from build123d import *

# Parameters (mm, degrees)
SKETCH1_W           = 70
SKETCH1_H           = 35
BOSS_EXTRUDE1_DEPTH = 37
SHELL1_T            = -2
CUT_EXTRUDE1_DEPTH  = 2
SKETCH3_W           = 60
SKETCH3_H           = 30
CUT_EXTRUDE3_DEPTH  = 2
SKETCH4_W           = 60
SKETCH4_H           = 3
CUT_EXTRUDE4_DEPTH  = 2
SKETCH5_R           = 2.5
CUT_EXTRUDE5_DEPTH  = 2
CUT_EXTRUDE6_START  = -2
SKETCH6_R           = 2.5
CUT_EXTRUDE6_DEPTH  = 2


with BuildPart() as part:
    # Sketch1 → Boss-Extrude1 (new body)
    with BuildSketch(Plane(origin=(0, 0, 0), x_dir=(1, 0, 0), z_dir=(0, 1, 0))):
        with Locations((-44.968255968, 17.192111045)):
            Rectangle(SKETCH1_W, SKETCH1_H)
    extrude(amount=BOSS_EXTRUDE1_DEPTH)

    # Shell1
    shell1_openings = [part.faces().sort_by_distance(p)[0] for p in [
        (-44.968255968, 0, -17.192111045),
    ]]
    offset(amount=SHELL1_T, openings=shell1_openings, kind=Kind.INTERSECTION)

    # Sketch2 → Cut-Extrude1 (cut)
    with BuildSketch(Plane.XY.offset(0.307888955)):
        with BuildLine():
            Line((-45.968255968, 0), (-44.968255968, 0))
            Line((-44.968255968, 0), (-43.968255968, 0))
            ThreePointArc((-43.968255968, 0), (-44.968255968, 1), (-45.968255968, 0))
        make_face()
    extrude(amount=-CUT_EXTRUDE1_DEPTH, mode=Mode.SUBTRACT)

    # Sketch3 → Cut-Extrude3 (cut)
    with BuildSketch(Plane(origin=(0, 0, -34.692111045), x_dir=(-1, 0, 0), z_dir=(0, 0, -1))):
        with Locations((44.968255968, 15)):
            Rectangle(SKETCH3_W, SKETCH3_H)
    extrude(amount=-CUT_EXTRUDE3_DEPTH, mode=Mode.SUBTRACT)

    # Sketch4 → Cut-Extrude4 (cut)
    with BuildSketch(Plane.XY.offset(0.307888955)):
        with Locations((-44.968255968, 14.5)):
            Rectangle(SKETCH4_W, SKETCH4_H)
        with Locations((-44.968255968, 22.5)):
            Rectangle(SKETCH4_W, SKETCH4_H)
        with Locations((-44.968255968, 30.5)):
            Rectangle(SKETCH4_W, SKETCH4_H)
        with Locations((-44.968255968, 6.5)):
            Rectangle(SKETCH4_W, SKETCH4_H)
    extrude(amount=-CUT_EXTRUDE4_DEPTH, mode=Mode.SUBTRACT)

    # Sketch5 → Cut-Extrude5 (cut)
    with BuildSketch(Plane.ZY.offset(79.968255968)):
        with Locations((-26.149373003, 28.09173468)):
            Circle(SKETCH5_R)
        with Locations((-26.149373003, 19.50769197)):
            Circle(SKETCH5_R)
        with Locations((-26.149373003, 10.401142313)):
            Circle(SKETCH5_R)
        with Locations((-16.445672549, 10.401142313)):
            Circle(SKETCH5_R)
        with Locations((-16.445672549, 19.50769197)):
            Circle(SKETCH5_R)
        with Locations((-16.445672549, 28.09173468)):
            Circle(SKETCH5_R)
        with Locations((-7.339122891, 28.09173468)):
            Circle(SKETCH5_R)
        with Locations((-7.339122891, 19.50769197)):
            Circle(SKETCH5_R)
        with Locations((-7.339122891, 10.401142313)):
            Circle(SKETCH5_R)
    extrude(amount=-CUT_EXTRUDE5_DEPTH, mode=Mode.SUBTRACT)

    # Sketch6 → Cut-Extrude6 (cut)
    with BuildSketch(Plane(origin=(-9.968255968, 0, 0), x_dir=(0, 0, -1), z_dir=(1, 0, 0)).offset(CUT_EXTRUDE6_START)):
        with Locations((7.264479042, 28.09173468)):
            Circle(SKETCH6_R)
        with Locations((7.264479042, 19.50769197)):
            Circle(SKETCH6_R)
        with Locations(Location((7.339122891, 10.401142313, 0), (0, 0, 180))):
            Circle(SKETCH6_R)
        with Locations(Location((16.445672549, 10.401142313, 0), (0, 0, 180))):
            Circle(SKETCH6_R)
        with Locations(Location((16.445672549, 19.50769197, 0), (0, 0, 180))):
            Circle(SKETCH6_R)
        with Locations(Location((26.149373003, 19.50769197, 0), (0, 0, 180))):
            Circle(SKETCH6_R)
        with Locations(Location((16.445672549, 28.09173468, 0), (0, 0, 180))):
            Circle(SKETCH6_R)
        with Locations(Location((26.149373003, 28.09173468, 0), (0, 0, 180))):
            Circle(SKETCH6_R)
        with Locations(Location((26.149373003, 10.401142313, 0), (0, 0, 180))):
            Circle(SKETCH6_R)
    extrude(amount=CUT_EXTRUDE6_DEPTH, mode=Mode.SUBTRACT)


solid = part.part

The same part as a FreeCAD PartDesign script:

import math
import FreeCAD as App
import Part
import Sketcher
from FreeCAD import Vector
Q = App.Units.Quantity


def faces_at(feature, points):
    """Names of the faces that lie closest to the given points."""
    faces = feature.Shape.Faces
    near = lambda p: min(range(len(faces)), key=lambda i: faces[i].distToShape(Part.Vertex(*p))[0])
    return sorted({f"Face{near(p) + 1}" for p in points})

doc = App.newDocument("Part")
body = doc.addObject("PartDesign::Body", "Body")

# Sketch on XZ plane
sketch1 = body.newObject("Sketcher::SketchObject", "Sketch")
sketch1.AttachmentSupport = (doc.getObject("XZ_Plane"), [""])
sketch1.MapMode = "FlatFace"
sketch1.addGeometry(Part.LineSegment(Vector(-80, -35, 0), Vector(-80, 0, 0)), False)
sketch1.addGeometry(Part.LineSegment(Vector(-80, 0, 0), Vector(-10, 0, 0)), False)
sketch1.addGeometry(Part.LineSegment(Vector(-10, 0, 0), Vector(-10, -35, 0)), False)
sketch1.addGeometry(Part.LineSegment(Vector(-10, -35, 0), Vector(-80, -35, 0)), False)
sketch1.addConstraint(Sketcher.Constraint("Coincident", 0, 2, 1, 1))
sketch1.addConstraint(Sketcher.Constraint("Coincident", 1, 2, 2, 1))
sketch1.addConstraint(Sketcher.Constraint("Coincident", 2, 2, 3, 1))
sketch1.addConstraint(Sketcher.Constraint("Coincident", 3, 2, 0, 1))
sketch1.addConstraint(Sketcher.Constraint("Vertical", 0))
sketch1.addConstraint(Sketcher.Constraint("Horizontal", 1))
sketch1.addConstraint(Sketcher.Constraint("Vertical", 2))
sketch1.addConstraint(Sketcher.Constraint("Horizontal", 3))
sketch1.addConstraint(Sketcher.Constraint("DistanceX", 1, 1, 1, 2, Q("70 mm")))
sketch1.addConstraint(Sketcher.Constraint("DistanceY", 0, 1, 0, 2, Q("35 mm")))
sketch1.addConstraint(Sketcher.Constraint("DistanceY", -1, 1, 0, 2, Q("0.307889 mm")))
sketch1.addConstraint(Sketcher.Constraint("DistanceX", 0, 2, -1, 1, Q("79.968256 mm")))
pad1 = body.newObject("PartDesign::Pad", "Pad")
pad1.Profile = sketch1
pad1.Length = 37
pad1.Reversed = True
doc.recompute()

thickness = body.newObject("PartDesign::Thickness", "Thickness")
thickness.Base = (pad1, faces_at(pad1, [(-44.968, 0, -17.192)]))
thickness.Value = 2
thickness.Reversed = True
thickness.Join = "Intersection"

# Sketch on XY plane
sketch2 = body.newObject("Sketcher::SketchObject", "Sketch001")
sketch2.AttachmentSupport = (doc.getObject("XY_Plane"), [""])
sketch2.MapMode = "FlatFace"
sketch2.AttachmentOffset = App.Placement(Vector(0, 0, 0.307889), App.Rotation())
sketch2.addGeometry(Part.LineSegment(Vector(-46, 0, 0), Vector(-44, 0, 0)), False)
sketch2.addGeometry(Part.ArcOfCircle(Part.Circle(Vector(-45, 0, 0), Vector(0, 0, 1), 1), math.radians(0), math.radians(180)), False)
sketch2.addConstraint(Sketcher.Constraint("Coincident", 0, 1, 1, 2))
sketch2.addConstraint(Sketcher.Constraint("Coincident", 1, 1, 0, 2))
sketch2.addConstraint(Sketcher.Constraint("Horizontal", 0))
sketch2.addConstraint(Sketcher.Constraint("PointOnObject", 1, 3, -1))
sketch2.addConstraint(Sketcher.Constraint("PointOnObject", 0, 1, -1))
sketch2.addConstraint(Sketcher.Constraint("Radius", 1, Q("1 mm")))
sketch2.addConstraint(Sketcher.Constraint("DistanceX", 1, 3, -1, 1, Q("44.968256 mm")))
pocket1 = body.newObject("PartDesign::Pocket", "Pocket")
pocket1.Profile = sketch2
pocket1.Length = 2

# Sketch on XY plane
sketch3 = body.newObject("Sketcher::SketchObject", "Sketch002")
sketch3.AttachmentSupport = (doc.getObject("XY_Plane"), [""])
sketch3.MapMode = "FlatFace"
sketch3.AttachmentOffset = App.Placement(Vector(0, 0, -34.692111), App.Rotation())
sketch3.addGeometry(Part.LineSegment(Vector(-15, 30, 0), Vector(-15, 0, 0)), False)
sketch3.addGeometry(Part.LineSegment(Vector(-15, 0, 0), Vector(-75, 0, 0)), False)
sketch3.addGeometry(Part.LineSegment(Vector(-75, 0, 0), Vector(-75, 30, 0)), False)
sketch3.addGeometry(Part.LineSegment(Vector(-75, 30, 0), Vector(-15, 30, 0)), False)
sketch3.addConstraint(Sketcher.Constraint("Coincident", 0, 2, 1, 1))
sketch3.addConstraint(Sketcher.Constraint("Coincident", 1, 2, 2, 1))
sketch3.addConstraint(Sketcher.Constraint("Coincident", 2, 2, 3, 1))
sketch3.addConstraint(Sketcher.Constraint("Coincident", 3, 2, 0, 1))
sketch3.addConstraint(Sketcher.Constraint("Vertical", 0))
sketch3.addConstraint(Sketcher.Constraint("Horizontal", 1))
sketch3.addConstraint(Sketcher.Constraint("Vertical", 2))
sketch3.addConstraint(Sketcher.Constraint("Horizontal", 3))
sketch3.addConstraint(Sketcher.Constraint("PointOnObject", 0, 2, -1))
sketch3.addConstraint(Sketcher.Constraint("DistanceX", 1, 2, 1, 1, Q("60 mm")))
sketch3.addConstraint(Sketcher.Constraint("DistanceY", 0, 2, 0, 1, Q("30 mm")))
sketch3.addConstraint(Sketcher.Constraint("DistanceX", 0, 2, -1, 1, Q("14.968256 mm")))
pocket2 = body.newObject("PartDesign::Pocket", "Pocket001")
pocket2.Profile = sketch3
pocket2.Length = 2
pocket2.Reversed = True

# Sketch on XY plane
sketch4 = body.newObject("Sketcher::SketchObject", "Sketch003")
sketch4.AttachmentSupport = (doc.getObject("XY_Plane"), [""])
sketch4.MapMode = "FlatFace"
sketch4.AttachmentOffset = App.Placement(Vector(0, 0, 0.307889), App.Rotation())
sketch4.addGeometry(Part.LineSegment(Vector(-75, 16, 0), Vector(-75, 13, 0)), False)
sketch4.addGeometry(Part.LineSegment(Vector(-75, 13, 0), Vector(-15, 13, 0)), False)
sketch4.addGeometry(Part.LineSegment(Vector(-15, 13, 0), Vector(-15, 16, 0)), False)
sketch4.addGeometry(Part.LineSegment(Vector(-15, 16, 0), Vector(-75, 16, 0)), False)
sketch4.addGeometry(Part.LineSegment(Vector(-75, 24, 0), Vector(-75, 21, 0)), False)
sketch4.addGeometry(Part.LineSegment(Vector(-75, 21, 0), Vector(-15, 21, 0)), False)
sketch4.addGeometry(Part.LineSegment(Vector(-15, 21, 0), Vector(-15, 24, 0)), False)
sketch4.addGeometry(Part.LineSegment(Vector(-15, 24, 0), Vector(-75, 24, 0)), False)
sketch4.addGeometry(Part.LineSegment(Vector(-75, 32, 0), Vector(-75, 29, 0)), False)
sketch4.addGeometry(Part.LineSegment(Vector(-75, 29, 0), Vector(-15, 29, 0)), False)
sketch4.addGeometry(Part.LineSegment(Vector(-15, 29, 0), Vector(-15, 32, 0)), False)
sketch4.addGeometry(Part.LineSegment(Vector(-15, 32, 0), Vector(-75, 32, 0)), False)
sketch4.addGeometry(Part.LineSegment(Vector(-75, 8, 0), Vector(-75, 5, 0)), False)
sketch4.addGeometry(Part.LineSegment(Vector(-75, 5, 0), Vector(-15, 5, 0)), False)
sketch4.addGeometry(Part.LineSegment(Vector(-15, 5, 0), Vector(-15, 8, 0)), False)
sketch4.addGeometry(Part.LineSegment(Vector(-15, 8, 0), Vector(-75, 8, 0)), False)
sketch4.addConstraint(Sketcher.Constraint("Coincident", 0, 2, 1, 1))
sketch4.addConstraint(Sketcher.Constraint("Coincident", 1, 2, 2, 1))
sketch4.addConstraint(Sketcher.Constraint("Coincident", 2, 2, 3, 1))
sketch4.addConstraint(Sketcher.Constraint("Coincident", 3, 2, 0, 1))
sketch4.addConstraint(Sketcher.Constraint("Coincident", 4, 2, 5, 1))
sketch4.addConstraint(Sketcher.Constraint("Coincident", 5, 2, 6, 1))
sketch4.addConstraint(Sketcher.Constraint("Coincident", 6, 2, 7, 1))
sketch4.addConstraint(Sketcher.Constraint("Coincident", 7, 2, 4, 1))
sketch4.addConstraint(Sketcher.Constraint("Coincident", 8, 2, 9, 1))
sketch4.addConstraint(Sketcher.Constraint("Coincident", 9, 2, 10, 1))
sketch4.addConstraint(Sketcher.Constraint("Coincident", 10, 2, 11, 1))
sketch4.addConstraint(Sketcher.Constraint("Coincident", 11, 2, 8, 1))
sketch4.addConstraint(Sketcher.Constraint("Coincident", 12, 2, 13, 1))
sketch4.addConstraint(Sketcher.Constraint("Coincident", 13, 2, 14, 1))
sketch4.addConstraint(Sketcher.Constraint("Coincident", 14, 2, 15, 1))
sketch4.addConstraint(Sketcher.Constraint("Coincident", 15, 2, 12, 1))
sketch4.addConstraint(Sketcher.Constraint("Vertical", 0))
sketch4.addConstraint(Sketcher.Constraint("Horizontal", 1))
sketch4.addConstraint(Sketcher.Constraint("Vertical", 2))
sketch4.addConstraint(Sketcher.Constraint("Horizontal", 3))
sketch4.addConstraint(Sketcher.Constraint("Vertical", 4))
sketch4.addConstraint(Sketcher.Constraint("Horizontal", 5))
sketch4.addConstraint(Sketcher.Constraint("Vertical", 6))
sketch4.addConstraint(Sketcher.Constraint("Horizontal", 7))
sketch4.addConstraint(Sketcher.Constraint("Vertical", 8))
sketch4.addConstraint(Sketcher.Constraint("Horizontal", 9))
sketch4.addConstraint(Sketcher.Constraint("Vertical", 10))
sketch4.addConstraint(Sketcher.Constraint("Horizontal", 11))
sketch4.addConstraint(Sketcher.Constraint("Vertical", 12))
sketch4.addConstraint(Sketcher.Constraint("Horizontal", 13))
sketch4.addConstraint(Sketcher.Constraint("Vertical", 14))
sketch4.addConstraint(Sketcher.Constraint("Horizontal", 15))
sketch4.addConstraint(Sketcher.Constraint("Vertical", 3, 2, 4, 2))
sketch4.addConstraint(Sketcher.Constraint("Vertical", 2, 2, 5, 2))
sketch4.addConstraint(Sketcher.Constraint("Vertical", 7, 2, 8, 2))
sketch4.addConstraint(Sketcher.Constraint("Vertical", 6, 2, 9, 2))
sketch4.addConstraint(Sketcher.Constraint("Vertical", 11, 2, 12, 2))
sketch4.addConstraint(Sketcher.Constraint("Vertical", 10, 2, 13, 2))
sketch4.addConstraint(Sketcher.Constraint("Equal", 2, 4))
sketch4.addConstraint(Sketcher.Constraint("Equal", 6, 8))
sketch4.addConstraint(Sketcher.Constraint("Equal", 10, 12))
sketch4.addConstraint(Sketcher.Constraint("DistanceX", 1, 1, 1, 2, Q("60 mm")))
sketch4.addConstraint(Sketcher.Constraint("DistanceY", 0, 2, 0, 1, Q("3 mm")))
sketch4.addConstraint(Sketcher.Constraint("DistanceY", -1, 1, 0, 2, Q("13 mm")))
sketch4.addConstraint(Sketcher.Constraint("DistanceY", -1, 1, 4, 2, Q("21 mm")))
sketch4.addConstraint(Sketcher.Constraint("DistanceY", -1, 1, 8, 2, Q("29 mm")))
sketch4.addConstraint(Sketcher.Constraint("DistanceY", -1, 1, 12, 2, Q("5 mm")))
sketch4.addConstraint(Sketcher.Constraint("DistanceX", 0, 2, -1, 1, Q("74.968256 mm")))
pocket3 = body.newObject("PartDesign::Pocket", "Pocket002")
pocket3.Profile = sketch4
pocket3.Length = 2

# Sketch on YZ plane
sketch5 = body.newObject("Sketcher::SketchObject", "Sketch004")
sketch5.AttachmentSupport = (doc.getObject("YZ_Plane"), [""])
sketch5.MapMode = "FlatFace"
sketch5.AttachmentOffset = App.Placement(Vector(0, 0, -79.968256), App.Rotation())
sketch5.addGeometry(Part.Circle(Vector(28.1, -26.1, 0), Vector(0, 0, 1), 2.5), False)
sketch5.addGeometry(Part.Circle(Vector(19.5, -26.1, 0), Vector(0, 0, 1), 2.5), False)
sketch5.addGeometry(Part.Circle(Vector(10.4, -26.1, 0), Vector(0, 0, 1), 2.5), False)
sketch5.addGeometry(Part.Circle(Vector(10.4, -16.4, 0), Vector(0, 0, 1), 2.5), False)
sketch5.addGeometry(Part.Circle(Vector(19.5, -16.4, 0), Vector(0, 0, 1), 2.5), False)
sketch5.addGeometry(Part.Circle(Vector(28.1, -16.4, 0), Vector(0, 0, 1), 2.5), False)
sketch5.addGeometry(Part.Circle(Vector(28.1, -7.3, 0), Vector(0, 0, 1), 2.5), False)
sketch5.addGeometry(Part.Circle(Vector(19.5, -7.3, 0), Vector(0, 0, 1), 2.5), False)
sketch5.addGeometry(Part.Circle(Vector(10.4, -7.3, 0), Vector(0, 0, 1), 2.5), False)
sketch5.addConstraint(Sketcher.Constraint("Equal", 0, 1))
sketch5.addConstraint(Sketcher.Constraint("Equal", 1, 2))
sketch5.addConstraint(Sketcher.Constraint("Equal", 2, 3))
sketch5.addConstraint(Sketcher.Constraint("Equal", 3, 4))
sketch5.addConstraint(Sketcher.Constraint("Equal", 4, 5))
sketch5.addConstraint(Sketcher.Constraint("Equal", 5, 6))
sketch5.addConstraint(Sketcher.Constraint("Equal", 6, 7))
sketch5.addConstraint(Sketcher.Constraint("Equal", 7, 8))
sketch5.addConstraint(Sketcher.Constraint("Horizontal", 0, 3, 1, 3))
sketch5.addConstraint(Sketcher.Constraint("Horizontal", 1, 3, 2, 3))
sketch5.addConstraint(Sketcher.Constraint("Horizontal", 3, 3, 4, 3))
sketch5.addConstraint(Sketcher.Constraint("Horizontal", 4, 3, 5, 3))
sketch5.addConstraint(Sketcher.Constraint("Horizontal", 6, 3, 7, 3))
sketch5.addConstraint(Sketcher.Constraint("Horizontal", 7, 3, 8, 3))
sketch5.addConstraint(Sketcher.Constraint("Vertical", 2, 3, 3, 3))
sketch5.addConstraint(Sketcher.Constraint("Vertical", 1, 3, 4, 3))
sketch5.addConstraint(Sketcher.Constraint("Vertical", 0, 3, 5, 3))
sketch5.addConstraint(Sketcher.Constraint("Vertical", 5, 3, 6, 3))
sketch5.addConstraint(Sketcher.Constraint("Vertical", 4, 3, 7, 3))
sketch5.addConstraint(Sketcher.Constraint("Vertical", 3, 3, 8, 3))
sketch5.addConstraint(Sketcher.Constraint("Diameter", 0, Q("5 mm")))
sketch5.addConstraint(Sketcher.Constraint("DistanceY", 2, 3, 3, 3, Q("9.7037 mm")))
sketch5.addConstraint(Sketcher.Constraint("DistanceX", -1, 1, 1, 3, Q("19.507692 mm")))
sketch5.addConstraint(Sketcher.Constraint("DistanceX", 2, 3, 1, 3, Q("9.10655 mm")))
sketch5.addConstraint(Sketcher.Constraint("DistanceY", 5, 3, 6, 3, Q("9.10655 mm")))
sketch5.addConstraint(Sketcher.Constraint("DistanceX", -1, 1, 0, 3, Q("28.091735 mm")))
sketch5.addConstraint(Sketcher.Constraint("DistanceY", 0, 3, -1, 1, Q("26.149373 mm")))
pocket4 = body.newObject("PartDesign::Pocket", "Pocket003")
pocket4.Profile = sketch5
pocket4.Length = 2
pocket4.Reversed = True

# Sketch on YZ plane
sketch6 = body.newObject("Sketcher::SketchObject", "Sketch005")
sketch6.AttachmentSupport = (doc.getObject("YZ_Plane"), [""])
sketch6.MapMode = "FlatFace"
sketch6.AttachmentOffset = App.Placement(Vector(0, 0, -11.968256), App.Rotation())
sketch6.addGeometry(Part.Circle(Vector(28.1, -7.3, 0), Vector(0, 0, 1), 2.5), False)
sketch6.addGeometry(Part.Circle(Vector(19.5, -7.3, 0), Vector(0, 0, 1), 2.5), False)
sketch6.addGeometry(Part.Circle(Vector(10.4, -7.3, 0), Vector(0, 0, 1), 2.5), False)
sketch6.addGeometry(Part.Circle(Vector(10.4, -16.4, 0), Vector(0, 0, 1), 2.5), False)
sketch6.addGeometry(Part.Circle(Vector(19.5, -16.4, 0), Vector(0, 0, 1), 2.5), False)
sketch6.addGeometry(Part.Circle(Vector(19.5, -26.1, 0), Vector(0, 0, 1), 2.5), False)
sketch6.addGeometry(Part.Circle(Vector(28.1, -16.4, 0), Vector(0, 0, 1), 2.5), False)
sketch6.addGeometry(Part.Circle(Vector(28.1, -26.1, 0), Vector(0, 0, 1), 2.5), False)
sketch6.addGeometry(Part.Circle(Vector(10.4, -26.1, 0), Vector(0, 0, 1), 2.5), False)
sketch6.addConstraint(Sketcher.Constraint("Equal", 0, 1))
sketch6.addConstraint(Sketcher.Constraint("Equal", 1, 2))
sketch6.addConstraint(Sketcher.Constraint("Equal", 2, 3))
sketch6.addConstraint(Sketcher.Constraint("Equal", 3, 4))
sketch6.addConstraint(Sketcher.Constraint("Equal", 4, 5))
sketch6.addConstraint(Sketcher.Constraint("Equal", 5, 6))
sketch6.addConstraint(Sketcher.Constraint("Equal", 6, 7))
sketch6.addConstraint(Sketcher.Constraint("Equal", 7, 8))
sketch6.addConstraint(Sketcher.Constraint("Horizontal", 0, 3, 1, 3))
sketch6.addConstraint(Sketcher.Constraint("Horizontal", 3, 3, 4, 3))
sketch6.addConstraint(Sketcher.Constraint("Horizontal", 4, 3, 6, 3))
sketch6.addConstraint(Sketcher.Constraint("Horizontal", 5, 3, 7, 3))
sketch6.addConstraint(Sketcher.Constraint("Horizontal", 7, 3, 8, 3))
sketch6.addConstraint(Sketcher.Constraint("Vertical", 2, 3, 3, 3))
sketch6.addConstraint(Sketcher.Constraint("Vertical", 1, 3, 4, 3))
sketch6.addConstraint(Sketcher.Constraint("Vertical", 4, 3, 5, 3))
sketch6.addConstraint(Sketcher.Constraint("Vertical", 0, 3, 6, 3))
sketch6.addConstraint(Sketcher.Constraint("Vertical", 6, 3, 7, 3))
sketch6.addConstraint(Sketcher.Constraint("Vertical", 3, 3, 8, 3))
sketch6.addConstraint(Sketcher.Constraint("Diameter", 0, Q("5 mm")))
sketch6.addConstraint(Sketcher.Constraint("DistanceY", 5, 3, 4, 3, Q("9.7037 mm")))
sketch6.addConstraint(Sketcher.Constraint("DistanceY", 0, 3, -1, 1, Q("7.264479 mm")))
sketch6.addConstraint(Sketcher.Constraint("DistanceX", -1, 1, 1, 3, Q("19.507692 mm")))
sketch6.addConstraint(Sketcher.Constraint("DistanceX", 2, 3, 1, 3, Q("9.10655 mm")))
sketch6.addConstraint(Sketcher.Constraint("DistanceY", 3, 3, 2, 3, Q("9.10655 mm")))
sketch6.addConstraint(Sketcher.Constraint("DistanceX", -1, 1, 0, 3, Q("28.091735 mm")))
sketch6.addConstraint(Sketcher.Constraint("DistanceY", 2, 3, -1, 1, Q("7.339123 mm")))
pocket5 = body.newObject("PartDesign::Pocket", "Pocket004")
pocket5.Profile = sketch6
pocket5.Length = 2
pocket5.Reversed = True

doc.recompute()
